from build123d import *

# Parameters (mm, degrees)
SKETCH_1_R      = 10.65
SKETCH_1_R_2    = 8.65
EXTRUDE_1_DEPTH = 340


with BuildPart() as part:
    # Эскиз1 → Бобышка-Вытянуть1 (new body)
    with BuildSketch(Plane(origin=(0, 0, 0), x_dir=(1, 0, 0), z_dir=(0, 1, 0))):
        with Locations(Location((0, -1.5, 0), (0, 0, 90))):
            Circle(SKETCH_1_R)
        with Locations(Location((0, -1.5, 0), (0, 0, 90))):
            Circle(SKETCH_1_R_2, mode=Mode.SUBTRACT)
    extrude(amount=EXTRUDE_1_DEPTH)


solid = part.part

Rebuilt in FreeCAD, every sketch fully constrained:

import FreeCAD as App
import Part
import Sketcher

doc = App.newDocument("Part")
body = doc.addObject("PartDesign::Body", "Body")

# Sketch on XZ plane
sketch1 = body.newObject("Sketcher::SketchObject", "Sketch")
sketch1.AttachmentSupport = (doc.getObject("XZ_Plane"), [""])
sketch1.MapMode = "FlatFace"
sketch1.addGeometry([
    Part.Circle(App.Vector(0, 1.5, 0), App.Vector(0, 0, 1), 10.65),
    Part.Circle(App.Vector(0, 1.5, 0), App.Vector(0, 0, 1), 8.65),
], False)
sketch1.addConstraint([
    Sketcher.Constraint("Coincident", 1, 3, 0, 3),
    Sketcher.Constraint("PointOnObject", 0, 3, -2),
    Sketcher.Constraint("Diameter", 0, 21.3),
    Sketcher.Constraint("Diameter", 1, 17.3),
    Sketcher.Constraint("DistanceY", -1, 1, 0, 3, 1.5),
])
pad1 = body.newObject("PartDesign::Pad", "Pad")
pad1.Profile = sketch1
pad1.Length = 340
pad1.Reversed = True

doc.recompute()
